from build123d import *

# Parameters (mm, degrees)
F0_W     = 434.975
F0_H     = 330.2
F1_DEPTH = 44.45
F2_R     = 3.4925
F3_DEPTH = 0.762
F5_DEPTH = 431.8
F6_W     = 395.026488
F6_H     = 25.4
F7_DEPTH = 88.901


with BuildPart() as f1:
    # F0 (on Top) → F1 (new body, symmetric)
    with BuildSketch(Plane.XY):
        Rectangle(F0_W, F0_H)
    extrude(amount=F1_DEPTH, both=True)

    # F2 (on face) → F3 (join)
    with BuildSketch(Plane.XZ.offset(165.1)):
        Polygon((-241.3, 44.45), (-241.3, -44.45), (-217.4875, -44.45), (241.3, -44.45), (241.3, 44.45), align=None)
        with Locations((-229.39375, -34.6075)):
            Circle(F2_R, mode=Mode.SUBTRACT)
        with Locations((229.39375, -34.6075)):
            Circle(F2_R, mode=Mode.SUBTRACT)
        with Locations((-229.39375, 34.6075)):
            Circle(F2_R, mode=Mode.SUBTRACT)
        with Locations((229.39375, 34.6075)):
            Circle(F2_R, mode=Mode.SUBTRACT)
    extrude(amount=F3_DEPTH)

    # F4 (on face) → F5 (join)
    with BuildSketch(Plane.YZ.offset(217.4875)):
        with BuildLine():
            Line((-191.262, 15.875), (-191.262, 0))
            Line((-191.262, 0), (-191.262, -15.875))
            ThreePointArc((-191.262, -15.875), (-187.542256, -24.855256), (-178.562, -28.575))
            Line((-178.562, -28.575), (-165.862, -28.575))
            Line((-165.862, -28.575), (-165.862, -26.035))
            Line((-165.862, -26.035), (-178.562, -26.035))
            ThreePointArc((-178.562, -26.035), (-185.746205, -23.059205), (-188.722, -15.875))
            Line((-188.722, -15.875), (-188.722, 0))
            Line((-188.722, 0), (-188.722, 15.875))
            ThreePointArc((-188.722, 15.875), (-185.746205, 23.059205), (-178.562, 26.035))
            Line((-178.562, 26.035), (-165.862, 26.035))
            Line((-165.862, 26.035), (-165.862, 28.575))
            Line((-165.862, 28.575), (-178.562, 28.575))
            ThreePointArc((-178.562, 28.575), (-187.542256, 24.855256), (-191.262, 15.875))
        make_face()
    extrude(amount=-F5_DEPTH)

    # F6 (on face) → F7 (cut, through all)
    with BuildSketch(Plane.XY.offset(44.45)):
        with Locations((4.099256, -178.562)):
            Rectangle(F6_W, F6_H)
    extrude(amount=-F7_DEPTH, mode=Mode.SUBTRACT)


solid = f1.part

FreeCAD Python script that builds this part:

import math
import FreeCAD as App
import Part
import Sketcher

V = App.Vector
Q = App.Units.Quantity


def add_polygon(sketch, points):
    """Adds a closed chain of lines whose ends are joined by coincident constraints."""
    first, n = sketch.GeometryCount, len(points)
    for a, b in zip(points, points[1:] + points[:1]):
        sketch.addGeometry(Part.LineSegment(App.Vector(*a, 0), App.Vector(*b, 0)), False)
    for i in range(n):
        sketch.addConstraint(Sketcher.Constraint("Coincident", first + i, 2, first + (i + 1) % n, 1))

doc = App.newDocument("Part")
body = doc.addObject("PartDesign::Body", "Body")

# Sketch on XY plane
sketch1 = body.newObject("Sketcher::SketchObject", "Sketch")
sketch1.AttachmentSupport = (doc.getObject("XY_Plane"), [""])
sketch1.MapMode = "FlatFace"
add_polygon(sketch1, [(-217, 165), (-217, -165), (217, -165), (217, 165)])  # lines 0-3
sketch1.addConstraint(Sketcher.Constraint("Vertical", 0))
sketch1.addConstraint(Sketcher.Constraint("Horizontal", 1))
sketch1.addConstraint(Sketcher.Constraint("Vertical", 2))
sketch1.addConstraint(Sketcher.Constraint("Horizontal", 3))
sketch1.addConstraint(Sketcher.Constraint("Symmetric", 0, 2, 2, 2, -1, 1))
sketch1.addConstraint(Sketcher.Constraint("DistanceY", 0, 2, 0, 1, Q("13 in")))
sketch1.addConstraint(Sketcher.Constraint("DistanceX", 1, 1, 1, 2, Q("17.125 in")))
pad1 = body.newObject("PartDesign::Pad", "Pad")
pad1.Profile = sketch1
pad1.Length = Q("3.5 in")
pad1.Midplane = True

# Sketch on XZ plane
sketch2 = body.newObject("Sketcher::SketchObject", "Sketch001")
sketch2.AttachmentSupport = (doc.getObject("XZ_Plane"), [""])
sketch2.MapMode = "FlatFace"
sketch2.AttachmentOffset = App.Placement(V(0, 0, 6.5 * 25.4), App.Rotation())
add_polygon(sketch2, [(-241.3, 44.5), (-241.3, -44.5), (241.3, -44.5), (241.3, 44.5)])  # lines 0-3
sketch2.addGeometry(Part.Circle(V(-229.4, -34.6, 0), V(0, 0, 1), 3.5), False)  # 4
sketch2.addGeometry(Part.Circle(V(229.4, -34.6, 0), V(0, 0, 1), 3.5), False)  # 5
sketch2.addGeometry(Part.Circle(V(-229.4, 34.6, 0), V(0, 0, 1), 3.5), False)  # 6
sketch2.addGeometry(Part.Circle(V(229.4, 34.6, 0), V(0, 0, 1), 3.5), False)  # 7
sketch2.addConstraint(Sketcher.Constraint("Vertical", 0))
sketch2.addConstraint(Sketcher.Constraint("Horizontal", 1))
sketch2.addConstraint(Sketcher.Constraint("Vertical", 2))
sketch2.addConstraint(Sketcher.Constraint("Horizontal", 3))
sketch2.addConstraint(Sketcher.Constraint("Equal", 4, 5))
sketch2.addConstraint(Sketcher.Constraint("Equal", 5, 6))
sketch2.addConstraint(Sketcher.Constraint("Equal", 6, 7))
sketch2.addConstraint(Sketcher.Constraint("Symmetric", 5, 3, 6, 3, -1, 1))
sketch2.addConstraint(Sketcher.Constraint("Symmetric", 4, 3, 7, 3, -1, 1))
sketch2.addConstraint(Sketcher.Constraint("Symmetric", 0, 2, 2, 2, -1, 1))
sketch2.addConstraint(Sketcher.Constraint("Symmetric", 4, 3, 5, 3, -2))
sketch2.addConstraint(Sketcher.Constraint("DistanceX", 1, 1, 1, 2, Q("19 in")))
sketch2.addConstraint(Sketcher.Constraint("Diameter", 4, Q("0.275 in")))
sketch2.addConstraint(Sketcher.Constraint("DistanceY", 0, 2, 0, 1, Q("3.5 in")))
sketch2.addConstraint(Sketcher.Constraint("DistanceX", 4, 3, -1, 1, Q("9.03125 in")))
sketch2.addConstraint(Sketcher.Constraint("DistanceY", 4, 3, 6, 3, Q("2.725 in")))
pad2 = body.newObject("PartDesign::Pad", "Pad001")
pad2.Profile = sketch2
pad2.Length = Q("0.03 in")

# Sketch on YZ plane
sketch3 = body.newObject("Sketcher::SketchObject", "Sketch002")
sketch3.AttachmentSupport = (doc.getObject("YZ_Plane"), [""])
sketch3.MapMode = "FlatFace"
sketch3.AttachmentOffset = App.Placement(V(0, 0, 8.5625 * 25.4), App.Rotation())
sketch3.addGeometry(Part.LineSegment(V(-191.3, 15.9, 0), V(-191.3, -15.9, 0)), False)
sketch3.addGeometry(Part.ArcOfCircle(Part.Circle(V(-178.6, -15.9, 0), V(0, 0, 1), 12.7), math.radians(-180), math.radians(-90)), False)
sketch3.addGeometry(Part.LineSegment(V(-178.6, -28.6, 0), V(-165.9, -28.6, 0)), False)
sketch3.addGeometry(Part.LineSegment(V(-165.9, -28.6, 0), V(-165.9, -26, 0)), False)
sketch3.addGeometry(Part.LineSegment(V(-165.9, -26, 0), V(-178.6, -26, 0)), False)
sketch3.addGeometry(Part.ArcOfCircle(Part.Circle(V(-178.6, -15.9, 0), V(0, 0, 1), 10.2), math.radians(180), math.radians(270)), False)
sketch3.addGeometry(Part.LineSegment(V(-188.7, -15.9, 0), V(-188.7, 15.9, 0)), False)
sketch3.addGeometry(Part.ArcOfCircle(Part.Circle(V(-178.6, 15.9, 0), V(0, 0, 1), 10.2), math.radians(90), math.radians(180)), False)
sketch3.addGeometry(Part.LineSegment(V(-178.6, 26, 0), V(-165.9, 26, 0)), False)
sketch3.addGeometry(Part.LineSegment(V(-165.9, 26, 0), V(-165.9, 28.6, 0)), False)
sketch3.addGeometry(Part.LineSegment(V(-165.9, 28.6, 0), V(-178.6, 28.6, 0)), False)
sketch3.addGeometry(Part.ArcOfCircle(Part.Circle(V(-178.6, 15.9, 0), V(0, 0, 1), 12.7), math.radians(90), math.radians(180)), False)
sketch3.addConstraint(Sketcher.Constraint("Tangent", 0, 2, 1, 1))
sketch3.addConstraint(Sketcher.Constraint("Tangent", 1, 2, 2, 1))
sketch3.addConstraint(Sketcher.Constraint("Coincident", 2, 2, 3, 1))
sketch3.addConstraint(Sketcher.Constraint("Coincident", 3, 2, 4, 1))
sketch3.addConstraint(Sketcher.Constraint("Tangent", 4, 2, 5, 2))
sketch3.addConstraint(Sketcher.Constraint("Tangent", 5, 1, 6, 1))
sketch3.addConstraint(Sketcher.Constraint("Tangent", 6, 2, 7, 2))
sketch3.addConstraint(Sketcher.Constraint("Tangent", 7, 1, 8, 1))
sketch3.addConstraint(Sketcher.Constraint("Coincident", 8, 2, 9, 1))
sketch3.addConstraint(Sketcher.Constraint("Coincident", 9, 2, 10, 1))
sketch3.addConstraint(Sketcher.Constraint("Tangent", 10, 2, 11, 1))
sketch3.addConstraint(Sketcher.Constraint("Tangent", 11, 2, 0, 1))
sketch3.addConstraint(Sketcher.Constraint("Vertical", 0))
sketch3.addConstraint(Sketcher.Constraint("Horizontal", 2))
sketch3.addConstraint(Sketcher.Constraint("Vertical", 3))
sketch3.addConstraint(Sketcher.Constraint("Horizontal", 4))
sketch3.addConstraint(Sketcher.Constraint("Vertical", 6))
sketch3.addConstraint(Sketcher.Constraint("Horizontal", 8))
sketch3.addConstraint(Sketcher.Constraint("Vertical", 9))
sketch3.addConstraint(Sketcher.Constraint("Horizontal", 10))
sketch3.addConstraint(Sketcher.Constraint("Coincident", 5, 3, 1, 3))
sketch3.addConstraint(Sketcher.Constraint("Coincident", 11, 3, 7, 3))
sketch3.addConstraint(Sketcher.Constraint("Equal", 5, 7))
sketch3.addConstraint(Sketcher.Constraint("Symmetric", 3, 2, 8, 2, -1))
sketch3.addConstraint(Sketcher.Constraint("Radius", 1, Q("0.5 in")))
sketch3.addConstraint(Sketcher.Constraint("Radius", 5, Q("0.4 in")))
sketch3.addConstraint(Sketcher.Constraint("DistanceX", 2, 1, 2, 2, Q("0.5 in")))
sketch3.addConstraint(Sketcher.Constraint("DistanceY", 0, 2, 0, 1, Q("1.25 in")))
sketch3.addConstraint(Sketcher.Constraint("DistanceX", 1, 3, -1, 1, Q("7.03 in")))
pad3 = body.newObject("PartDesign::Pad", "Pad002")
pad3.Profile = sketch3
pad3.Length = Q("17 in")
pad3.Reversed = True

# Sketch on XY plane
sketch4 = body.newObject("Sketcher::SketchObject", "Sketch003")
sketch4.AttachmentSupport = (doc.getObject("XY_Plane"), [""])
sketch4.MapMode = "FlatFace"
sketch4.AttachmentOffset = App.Placement(V(0, 0, 1.75 * 25.4), App.Rotation())
add_polygon(sketch4, [(-193, -166), (-193, -191), (202, -191), (202, -166)])  # lines 0-3
sketch4.addConstraint(Sketcher.Constraint("Vertical", 0))
sketch4.addConstraint(Sketcher.Constraint("Horizontal", 1))
sketch4.addConstraint(Sketcher.Constraint("Vertical", 2))
sketch4.addConstraint(Sketcher.Constraint("Horizontal", 3))
sketch4.addConstraint(Sketcher.Constraint("DistanceY", 0, 2, 0, 1, Q("1 in")))
sketch4.addConstraint(Sketcher.Constraint("DistanceY", 0, 2, -1, 1, Q("7.53 in")))
sketch4.addConstraint(Sketcher.Constraint("DistanceX", -1, 1, 1, 2, Q("7.9375 in")))
sketch4.addConstraint(Sketcher.Constraint("DistanceX", 1, 1, 1, 2, 395.026488))
pocket1 = body.newObject("PartDesign::Pocket", "Pocket")
pocket1.Profile = sketch4
pocket1.Type = "ThroughAll"

doc.recompute()
